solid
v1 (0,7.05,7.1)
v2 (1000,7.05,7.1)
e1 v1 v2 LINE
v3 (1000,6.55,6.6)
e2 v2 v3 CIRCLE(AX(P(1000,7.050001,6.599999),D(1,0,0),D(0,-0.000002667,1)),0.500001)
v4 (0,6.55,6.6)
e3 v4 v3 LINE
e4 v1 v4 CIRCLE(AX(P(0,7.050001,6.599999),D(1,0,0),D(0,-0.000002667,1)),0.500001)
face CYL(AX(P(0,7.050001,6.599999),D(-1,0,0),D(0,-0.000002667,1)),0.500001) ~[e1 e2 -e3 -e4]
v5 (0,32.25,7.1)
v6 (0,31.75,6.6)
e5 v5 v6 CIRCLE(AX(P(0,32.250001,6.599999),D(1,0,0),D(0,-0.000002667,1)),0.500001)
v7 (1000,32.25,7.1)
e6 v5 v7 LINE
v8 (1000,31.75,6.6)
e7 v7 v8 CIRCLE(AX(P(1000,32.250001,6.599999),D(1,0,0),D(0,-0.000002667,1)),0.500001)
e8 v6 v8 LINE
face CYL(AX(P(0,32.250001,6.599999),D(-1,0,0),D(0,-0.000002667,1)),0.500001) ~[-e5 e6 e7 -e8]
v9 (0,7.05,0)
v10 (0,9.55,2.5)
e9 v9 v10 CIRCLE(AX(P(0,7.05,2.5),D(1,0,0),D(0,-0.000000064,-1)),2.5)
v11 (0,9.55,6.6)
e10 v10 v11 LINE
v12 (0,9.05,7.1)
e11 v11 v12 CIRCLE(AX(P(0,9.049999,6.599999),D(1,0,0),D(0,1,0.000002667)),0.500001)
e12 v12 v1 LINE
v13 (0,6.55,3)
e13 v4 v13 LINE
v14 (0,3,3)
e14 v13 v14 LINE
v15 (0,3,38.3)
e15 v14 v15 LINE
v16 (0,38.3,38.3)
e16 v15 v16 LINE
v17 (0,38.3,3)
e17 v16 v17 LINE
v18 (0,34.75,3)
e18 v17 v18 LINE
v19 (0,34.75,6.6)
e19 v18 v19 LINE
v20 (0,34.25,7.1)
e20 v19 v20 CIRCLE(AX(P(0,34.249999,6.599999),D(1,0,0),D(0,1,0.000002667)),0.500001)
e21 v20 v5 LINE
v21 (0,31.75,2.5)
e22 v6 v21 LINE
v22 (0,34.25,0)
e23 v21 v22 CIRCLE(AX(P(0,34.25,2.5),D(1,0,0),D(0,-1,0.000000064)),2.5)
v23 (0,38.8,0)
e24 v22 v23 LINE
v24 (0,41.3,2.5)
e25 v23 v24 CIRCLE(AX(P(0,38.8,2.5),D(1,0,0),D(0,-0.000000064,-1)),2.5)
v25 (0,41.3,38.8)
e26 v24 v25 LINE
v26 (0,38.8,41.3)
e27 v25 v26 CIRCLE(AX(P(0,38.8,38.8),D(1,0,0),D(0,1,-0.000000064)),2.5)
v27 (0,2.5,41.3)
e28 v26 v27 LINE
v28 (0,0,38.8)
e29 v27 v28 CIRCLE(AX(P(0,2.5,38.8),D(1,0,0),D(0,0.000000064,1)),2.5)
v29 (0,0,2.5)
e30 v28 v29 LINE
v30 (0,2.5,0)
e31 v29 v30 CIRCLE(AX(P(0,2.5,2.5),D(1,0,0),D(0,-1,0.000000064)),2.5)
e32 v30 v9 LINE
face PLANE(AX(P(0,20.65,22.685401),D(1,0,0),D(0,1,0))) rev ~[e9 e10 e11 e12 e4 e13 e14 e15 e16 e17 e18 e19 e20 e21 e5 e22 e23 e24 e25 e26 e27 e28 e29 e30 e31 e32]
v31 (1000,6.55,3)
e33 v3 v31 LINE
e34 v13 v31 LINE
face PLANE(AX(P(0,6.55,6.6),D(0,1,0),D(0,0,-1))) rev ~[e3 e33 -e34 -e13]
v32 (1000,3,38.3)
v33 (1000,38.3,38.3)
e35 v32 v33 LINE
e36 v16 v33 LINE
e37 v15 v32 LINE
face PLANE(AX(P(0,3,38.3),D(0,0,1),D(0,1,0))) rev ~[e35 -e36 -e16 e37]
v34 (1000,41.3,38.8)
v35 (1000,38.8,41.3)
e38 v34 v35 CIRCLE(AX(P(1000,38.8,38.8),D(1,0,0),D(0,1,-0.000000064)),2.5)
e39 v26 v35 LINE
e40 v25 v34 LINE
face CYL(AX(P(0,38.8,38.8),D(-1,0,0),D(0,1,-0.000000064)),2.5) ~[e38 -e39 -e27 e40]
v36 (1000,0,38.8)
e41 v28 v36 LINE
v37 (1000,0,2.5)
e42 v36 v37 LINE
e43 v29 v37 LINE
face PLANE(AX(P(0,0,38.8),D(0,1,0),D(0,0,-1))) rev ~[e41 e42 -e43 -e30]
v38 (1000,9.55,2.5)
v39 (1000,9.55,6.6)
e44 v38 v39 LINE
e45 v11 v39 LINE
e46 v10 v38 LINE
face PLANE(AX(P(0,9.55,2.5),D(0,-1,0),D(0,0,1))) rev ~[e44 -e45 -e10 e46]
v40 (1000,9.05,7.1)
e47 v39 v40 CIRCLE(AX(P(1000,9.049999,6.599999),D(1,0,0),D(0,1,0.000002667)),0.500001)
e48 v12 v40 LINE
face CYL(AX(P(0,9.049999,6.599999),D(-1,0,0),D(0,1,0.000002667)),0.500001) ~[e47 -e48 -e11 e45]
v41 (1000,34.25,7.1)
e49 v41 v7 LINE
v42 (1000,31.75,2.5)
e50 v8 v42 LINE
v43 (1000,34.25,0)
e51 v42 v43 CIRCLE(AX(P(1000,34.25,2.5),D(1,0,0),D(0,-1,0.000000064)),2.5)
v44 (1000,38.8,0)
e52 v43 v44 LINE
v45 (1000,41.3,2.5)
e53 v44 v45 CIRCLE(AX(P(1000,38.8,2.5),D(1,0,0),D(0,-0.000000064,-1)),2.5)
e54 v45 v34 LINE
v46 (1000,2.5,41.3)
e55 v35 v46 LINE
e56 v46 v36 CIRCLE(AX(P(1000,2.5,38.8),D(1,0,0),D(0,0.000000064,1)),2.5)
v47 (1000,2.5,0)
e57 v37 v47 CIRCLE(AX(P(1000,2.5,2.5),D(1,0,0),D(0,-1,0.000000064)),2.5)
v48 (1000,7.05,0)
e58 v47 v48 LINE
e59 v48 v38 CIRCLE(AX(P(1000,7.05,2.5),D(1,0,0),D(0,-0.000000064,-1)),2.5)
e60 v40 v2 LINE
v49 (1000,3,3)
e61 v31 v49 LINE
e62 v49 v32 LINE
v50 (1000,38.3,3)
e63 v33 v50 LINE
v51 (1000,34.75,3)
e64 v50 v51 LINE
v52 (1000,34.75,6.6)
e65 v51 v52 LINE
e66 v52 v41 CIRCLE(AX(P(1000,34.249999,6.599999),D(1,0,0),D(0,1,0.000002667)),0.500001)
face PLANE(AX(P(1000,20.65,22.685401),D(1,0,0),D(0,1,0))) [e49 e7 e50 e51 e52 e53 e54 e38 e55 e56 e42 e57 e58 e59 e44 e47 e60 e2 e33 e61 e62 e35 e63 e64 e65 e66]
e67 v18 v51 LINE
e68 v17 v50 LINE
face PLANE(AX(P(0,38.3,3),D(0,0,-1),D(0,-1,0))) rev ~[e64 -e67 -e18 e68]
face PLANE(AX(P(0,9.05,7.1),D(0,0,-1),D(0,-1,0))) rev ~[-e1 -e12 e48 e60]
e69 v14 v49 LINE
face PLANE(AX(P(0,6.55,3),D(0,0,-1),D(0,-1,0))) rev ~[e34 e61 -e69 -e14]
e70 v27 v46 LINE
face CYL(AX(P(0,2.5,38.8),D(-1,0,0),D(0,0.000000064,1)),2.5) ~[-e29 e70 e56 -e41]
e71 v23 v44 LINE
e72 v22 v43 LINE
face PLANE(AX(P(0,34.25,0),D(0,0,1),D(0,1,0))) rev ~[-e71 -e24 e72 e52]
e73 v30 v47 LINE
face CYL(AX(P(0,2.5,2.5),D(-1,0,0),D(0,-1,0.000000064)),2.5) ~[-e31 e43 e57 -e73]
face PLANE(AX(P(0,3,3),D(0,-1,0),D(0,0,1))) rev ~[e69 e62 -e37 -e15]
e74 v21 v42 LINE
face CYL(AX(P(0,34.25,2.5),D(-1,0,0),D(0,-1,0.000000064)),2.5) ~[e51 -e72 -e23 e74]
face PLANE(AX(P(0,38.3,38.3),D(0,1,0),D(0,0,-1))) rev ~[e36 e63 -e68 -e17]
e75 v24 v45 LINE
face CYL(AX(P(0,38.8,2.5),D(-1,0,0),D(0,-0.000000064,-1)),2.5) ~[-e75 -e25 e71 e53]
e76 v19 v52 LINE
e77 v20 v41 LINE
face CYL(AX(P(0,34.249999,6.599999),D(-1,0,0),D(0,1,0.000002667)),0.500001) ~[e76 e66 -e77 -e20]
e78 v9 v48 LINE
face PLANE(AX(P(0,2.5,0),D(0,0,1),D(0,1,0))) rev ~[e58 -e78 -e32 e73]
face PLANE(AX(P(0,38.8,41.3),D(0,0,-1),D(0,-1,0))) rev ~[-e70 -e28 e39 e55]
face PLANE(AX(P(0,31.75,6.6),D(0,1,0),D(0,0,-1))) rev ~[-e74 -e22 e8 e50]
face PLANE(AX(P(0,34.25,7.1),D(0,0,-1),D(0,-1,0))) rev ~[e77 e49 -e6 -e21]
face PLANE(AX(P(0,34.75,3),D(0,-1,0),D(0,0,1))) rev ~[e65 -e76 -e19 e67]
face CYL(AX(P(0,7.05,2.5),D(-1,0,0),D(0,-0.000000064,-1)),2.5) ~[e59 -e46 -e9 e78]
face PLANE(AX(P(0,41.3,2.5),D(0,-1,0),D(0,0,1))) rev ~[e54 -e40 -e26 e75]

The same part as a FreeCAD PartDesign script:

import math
import FreeCAD as App
import Part
import Sketcher
from FreeCAD import Vector
Q = App.Units.Quantity

doc = App.newDocument("Part")
body = doc.addObject("PartDesign::Body", "Body")

sketch1 = body.newObject("Sketcher::SketchObject", "Sketch")
sketch1.AttachmentSupport = (doc.getObject("YZ_Plane"), [""])
sketch1.MapMode = "FlatFace"
sketch1.addGeometry([
    Part.LineSegment(Vector(0, 38.8, 0), Vector(0, 2.5, 0)),
    Part.ArcOfCircle(Part.Circle(Vector(2.5, 2.5, 0), Vector(0, 0, 1), 2.5), math.radians(180), math.radians(270)),
    Part.LineSegment(Vector(2.5, 0, 0), Vector(7, 0, 0)),
    Part.ArcOfCircle(Part.Circle(Vector(7.1, 2.5, 0), Vector(0, 0, 1), 2.5), math.radians(-90), math.radians(0)),
    Part.LineSegment(Vector(9.6, 2.5, 0), Vector(9.6, 6.6, 0)),
    Part.ArcOfCircle(Part.Circle(Vector(9, 6.6, 0), Vector(0, 0, 1), 0.5), math.radians(0), math.radians(90)),
    Part.LineSegment(Vector(9.1, 7.1, 0), Vector(7, 7.1, 0)),
    Part.ArcOfCircle(Part.Circle(Vector(7.1, 6.6, 0), Vector(0, 0, 1), 0.5), math.radians(90), math.radians(180)),
    Part.LineSegment(Vector(6.5, 6.6, 0), Vector(6.5, 3, 0)),
    Part.LineSegment(Vector(6.5, 3, 0), Vector(3, 3, 0)),
    Part.LineSegment(Vector(3, 3, 0), Vector(3, 38.3, 0)),
    Part.LineSegment(Vector(3, 38.3, 0), Vector(38.3, 38.3, 0)),
    Part.LineSegment(Vector(38.3, 38.3, 0), Vector(38.3, 3, 0)),
    Part.LineSegment(Vector(38.3, 3, 0), Vector(34.8, 3, 0)),
    Part.LineSegment(Vector(34.8, 3, 0), Vector(34.8, 6.6, 0)),
    Part.ArcOfCircle(Part.Circle(Vector(34.2, 6.6, 0), Vector(0, 0, 1), 0.5), math.radians(0), math.radians(90)),
    Part.LineSegment(Vector(34.2, 7.1, 0), Vector(32.2, 7.1, 0)),
    Part.ArcOfCircle(Part.Circle(Vector(32.3, 6.6, 0), Vector(0, 0, 1), 0.5), math.radians(90), math.radians(180)),
    Part.LineSegment(Vector(31.8, 6.6, 0), Vector(31.8, 2.5, 0)),
    Part.ArcOfCircle(Part.Circle(Vector(34.2, 2.5, 0), Vector(0, 0, 1), 2.5), math.radians(180), math.radians(270)),
    Part.LineSegment(Vector(34.2, 0, 0), Vector(38.8, 0, 0)),
    Part.ArcOfCircle(Part.Circle(Vector(38.8, 2.5, 0), Vector(0, 0, 1), 2.5), math.radians(-90), math.radians(0)),
    Part.LineSegment(Vector(41.3, 2.5, 0), Vector(41.3, 38.8, 0)),
    Part.ArcOfCircle(Part.Circle(Vector(38.8, 38.8, 0), Vector(0, 0, 1), 2.5), math.radians(0), math.radians(90)),
    Part.LineSegment(Vector(38.8, 41.3, 0), Vector(2.5, 41.3, 0)),
    Part.ArcOfCircle(Part.Circle(Vector(2.5, 38.8, 0), Vector(0, 0, 1), 2.5), math.radians(90), math.radians(180)),
], False)
sketch1.addConstraint([
    Sketcher.Constraint("Tangent", 0, 2, 1, 1),
    Sketcher.Constraint("Tangent", 1, 2, 2, 1),
    Sketcher.Constraint("Tangent", 2, 2, 3, 1),
    Sketcher.Constraint("Tangent", 3, 2, 4, 1),
    Sketcher.Constraint("Coincident", 4, 2, 5, 1),
    Sketcher.Constraint("Coincident", 5, 2, 6, 1),
    Sketcher.Constraint("Coincident", 6, 2, 7, 1),
    Sketcher.Constraint("Coincident", 7, 2, 8, 1),
    Sketcher.Constraint("Coincident", 8, 2, 9, 1),
    Sketcher.Constraint("Coincident", 9, 2, 10, 1),
    Sketcher.Constraint("Coincident", 10, 2, 11, 1),
    Sketcher.Constraint("Coincident", 11, 2, 12, 1),
    Sketcher.Constraint("Coincident", 12, 2, 13, 1),
    Sketcher.Constraint("Coincident", 13, 2, 14, 1),
    Sketcher.Constraint("Coincident", 14, 2, 15, 1),
    Sketcher.Constraint("Coincident", 15, 2, 16, 1),
    Sketcher.Constraint("Coincident", 16, 2, 17, 1),
    Sketcher.Constraint("Coincident", 17, 2, 18, 1),
    Sketcher.Constraint("Tangent", 18, 2, 19, 1),
    Sketcher.Constraint("Tangent", 19, 2, 20, 1),
    Sketcher.Constraint("Tangent", 20, 2, 21, 1),
    Sketcher.Constraint("Tangent", 21, 2, 22, 1),
    Sketcher.Constraint("Tangent", 22, 2, 23, 1),
    Sketcher.Constraint("Tangent", 23, 2, 24, 1),
    Sketcher.Constraint("Tangent", 24, 2, 25, 1),
    Sketcher.Constraint("Tangent", 25, 2, 0, 1),
    Sketcher.Constraint("Vertical", 0),
    Sketcher.Constraint("Horizontal", 2),
    Sketcher.Constraint("Vertical", 4),
    Sketcher.Constraint("Horizontal", 6),
    Sketcher.Constraint("Vertical", 8),
    Sketcher.Constraint("Horizontal", 9),
    Sketcher.Constraint("Vertical", 10),
    Sketcher.Constraint("Horizontal", 11),
    Sketcher.Constraint("Vertical", 12),
    Sketcher.Constraint("Horizontal", 13),
    Sketcher.Constraint("Vertical", 14),
    Sketcher.Constraint("Horizontal", 16),
    Sketcher.Constraint("Vertical", 18),
    Sketcher.Constraint("Horizontal", 20),
    Sketcher.Constraint("Vertical", 22),
    Sketcher.Constraint("Horizontal", 24),
    Sketcher.Constraint("Equal", 1, 3),
    Sketcher.Constraint("Equal", 5, 7),
    Sketcher.Constraint("Equal", 7, 15),
    Sketcher.Constraint("Equal", 15, 17),
    Sketcher.Constraint("Equal", 3, 19),
    Sketcher.Constraint("Equal", 19, 21),
    Sketcher.Constraint("Equal", 21, 23),
    Sketcher.Constraint("Equal", 23, 25),
    Sketcher.Constraint("PointOnObject", 0, 2, -2),
    Sketcher.Constraint("PointOnObject", 1, 2, -1),
    Sketcher.Constraint("PointOnObject", 19, 2, -1),
    Sketcher.Constraint("Horizontal", 7, 3, 15, 3),
    Sketcher.Constraint("Horizontal", 17, 3, 4, 2),
    Sketcher.Constraint("Horizontal", 4, 2, 7, 2),
    Sketcher.Constraint("Horizontal", 9, 2, 12, 2),
    Sketcher.Constraint("Horizontal", 7, 2, 14, 2),
    Sketcher.Constraint("Horizontal", 14, 2, 17, 2),
    Sketcher.Constraint("Vertical", 3, 3, 7, 3),
    Sketcher.Constraint("Vertical", 15, 3, 19, 3),
    Sketcher.Constraint("Vertical", 2, 2, 6, 2),
    Sketcher.Constraint("Vertical", 19, 3, 15, 2),
    Sketcher.Constraint("Vertical", 17, 3, 16, 2),
    Sketcher.Constraint("Equal", 9, 13),
    Sketcher.Constraint("Equal", 6, 16),
    Sketcher.Constraint("Equal", 2, 20),
    Sketcher.Constraint("Equal", 24, 0),
    Sketcher.Constraint("Equal", 11, 10),
    Sketcher.Constraint("Radius", 1, Q("2.5 mm")),
    Sketcher.Constraint("Radius", 5, Q("0.500001 mm")),
    Sketcher.Constraint("DistanceX", 11, 1, 11, 2, Q("35.3 mm")),
    Sketcher.Constraint("DistanceX", 24, 2, 24, 1, Q("36.3 mm")),
    Sketcher.Constraint("DistanceY", 4, 1, 4, 2, Q("4.1 mm")),
    Sketcher.Constraint("DistanceY", 8, 2, 8, 1, Q("3.6 mm")),
    Sketcher.Constraint("DistanceX", 2, 1, 2, 2, Q("4.55 mm")),
])
pad1 = body.newObject("PartDesign::Pad", "Pad")
pad1.Profile = sketch1
pad1.Length = 1000

doc.recompute()
